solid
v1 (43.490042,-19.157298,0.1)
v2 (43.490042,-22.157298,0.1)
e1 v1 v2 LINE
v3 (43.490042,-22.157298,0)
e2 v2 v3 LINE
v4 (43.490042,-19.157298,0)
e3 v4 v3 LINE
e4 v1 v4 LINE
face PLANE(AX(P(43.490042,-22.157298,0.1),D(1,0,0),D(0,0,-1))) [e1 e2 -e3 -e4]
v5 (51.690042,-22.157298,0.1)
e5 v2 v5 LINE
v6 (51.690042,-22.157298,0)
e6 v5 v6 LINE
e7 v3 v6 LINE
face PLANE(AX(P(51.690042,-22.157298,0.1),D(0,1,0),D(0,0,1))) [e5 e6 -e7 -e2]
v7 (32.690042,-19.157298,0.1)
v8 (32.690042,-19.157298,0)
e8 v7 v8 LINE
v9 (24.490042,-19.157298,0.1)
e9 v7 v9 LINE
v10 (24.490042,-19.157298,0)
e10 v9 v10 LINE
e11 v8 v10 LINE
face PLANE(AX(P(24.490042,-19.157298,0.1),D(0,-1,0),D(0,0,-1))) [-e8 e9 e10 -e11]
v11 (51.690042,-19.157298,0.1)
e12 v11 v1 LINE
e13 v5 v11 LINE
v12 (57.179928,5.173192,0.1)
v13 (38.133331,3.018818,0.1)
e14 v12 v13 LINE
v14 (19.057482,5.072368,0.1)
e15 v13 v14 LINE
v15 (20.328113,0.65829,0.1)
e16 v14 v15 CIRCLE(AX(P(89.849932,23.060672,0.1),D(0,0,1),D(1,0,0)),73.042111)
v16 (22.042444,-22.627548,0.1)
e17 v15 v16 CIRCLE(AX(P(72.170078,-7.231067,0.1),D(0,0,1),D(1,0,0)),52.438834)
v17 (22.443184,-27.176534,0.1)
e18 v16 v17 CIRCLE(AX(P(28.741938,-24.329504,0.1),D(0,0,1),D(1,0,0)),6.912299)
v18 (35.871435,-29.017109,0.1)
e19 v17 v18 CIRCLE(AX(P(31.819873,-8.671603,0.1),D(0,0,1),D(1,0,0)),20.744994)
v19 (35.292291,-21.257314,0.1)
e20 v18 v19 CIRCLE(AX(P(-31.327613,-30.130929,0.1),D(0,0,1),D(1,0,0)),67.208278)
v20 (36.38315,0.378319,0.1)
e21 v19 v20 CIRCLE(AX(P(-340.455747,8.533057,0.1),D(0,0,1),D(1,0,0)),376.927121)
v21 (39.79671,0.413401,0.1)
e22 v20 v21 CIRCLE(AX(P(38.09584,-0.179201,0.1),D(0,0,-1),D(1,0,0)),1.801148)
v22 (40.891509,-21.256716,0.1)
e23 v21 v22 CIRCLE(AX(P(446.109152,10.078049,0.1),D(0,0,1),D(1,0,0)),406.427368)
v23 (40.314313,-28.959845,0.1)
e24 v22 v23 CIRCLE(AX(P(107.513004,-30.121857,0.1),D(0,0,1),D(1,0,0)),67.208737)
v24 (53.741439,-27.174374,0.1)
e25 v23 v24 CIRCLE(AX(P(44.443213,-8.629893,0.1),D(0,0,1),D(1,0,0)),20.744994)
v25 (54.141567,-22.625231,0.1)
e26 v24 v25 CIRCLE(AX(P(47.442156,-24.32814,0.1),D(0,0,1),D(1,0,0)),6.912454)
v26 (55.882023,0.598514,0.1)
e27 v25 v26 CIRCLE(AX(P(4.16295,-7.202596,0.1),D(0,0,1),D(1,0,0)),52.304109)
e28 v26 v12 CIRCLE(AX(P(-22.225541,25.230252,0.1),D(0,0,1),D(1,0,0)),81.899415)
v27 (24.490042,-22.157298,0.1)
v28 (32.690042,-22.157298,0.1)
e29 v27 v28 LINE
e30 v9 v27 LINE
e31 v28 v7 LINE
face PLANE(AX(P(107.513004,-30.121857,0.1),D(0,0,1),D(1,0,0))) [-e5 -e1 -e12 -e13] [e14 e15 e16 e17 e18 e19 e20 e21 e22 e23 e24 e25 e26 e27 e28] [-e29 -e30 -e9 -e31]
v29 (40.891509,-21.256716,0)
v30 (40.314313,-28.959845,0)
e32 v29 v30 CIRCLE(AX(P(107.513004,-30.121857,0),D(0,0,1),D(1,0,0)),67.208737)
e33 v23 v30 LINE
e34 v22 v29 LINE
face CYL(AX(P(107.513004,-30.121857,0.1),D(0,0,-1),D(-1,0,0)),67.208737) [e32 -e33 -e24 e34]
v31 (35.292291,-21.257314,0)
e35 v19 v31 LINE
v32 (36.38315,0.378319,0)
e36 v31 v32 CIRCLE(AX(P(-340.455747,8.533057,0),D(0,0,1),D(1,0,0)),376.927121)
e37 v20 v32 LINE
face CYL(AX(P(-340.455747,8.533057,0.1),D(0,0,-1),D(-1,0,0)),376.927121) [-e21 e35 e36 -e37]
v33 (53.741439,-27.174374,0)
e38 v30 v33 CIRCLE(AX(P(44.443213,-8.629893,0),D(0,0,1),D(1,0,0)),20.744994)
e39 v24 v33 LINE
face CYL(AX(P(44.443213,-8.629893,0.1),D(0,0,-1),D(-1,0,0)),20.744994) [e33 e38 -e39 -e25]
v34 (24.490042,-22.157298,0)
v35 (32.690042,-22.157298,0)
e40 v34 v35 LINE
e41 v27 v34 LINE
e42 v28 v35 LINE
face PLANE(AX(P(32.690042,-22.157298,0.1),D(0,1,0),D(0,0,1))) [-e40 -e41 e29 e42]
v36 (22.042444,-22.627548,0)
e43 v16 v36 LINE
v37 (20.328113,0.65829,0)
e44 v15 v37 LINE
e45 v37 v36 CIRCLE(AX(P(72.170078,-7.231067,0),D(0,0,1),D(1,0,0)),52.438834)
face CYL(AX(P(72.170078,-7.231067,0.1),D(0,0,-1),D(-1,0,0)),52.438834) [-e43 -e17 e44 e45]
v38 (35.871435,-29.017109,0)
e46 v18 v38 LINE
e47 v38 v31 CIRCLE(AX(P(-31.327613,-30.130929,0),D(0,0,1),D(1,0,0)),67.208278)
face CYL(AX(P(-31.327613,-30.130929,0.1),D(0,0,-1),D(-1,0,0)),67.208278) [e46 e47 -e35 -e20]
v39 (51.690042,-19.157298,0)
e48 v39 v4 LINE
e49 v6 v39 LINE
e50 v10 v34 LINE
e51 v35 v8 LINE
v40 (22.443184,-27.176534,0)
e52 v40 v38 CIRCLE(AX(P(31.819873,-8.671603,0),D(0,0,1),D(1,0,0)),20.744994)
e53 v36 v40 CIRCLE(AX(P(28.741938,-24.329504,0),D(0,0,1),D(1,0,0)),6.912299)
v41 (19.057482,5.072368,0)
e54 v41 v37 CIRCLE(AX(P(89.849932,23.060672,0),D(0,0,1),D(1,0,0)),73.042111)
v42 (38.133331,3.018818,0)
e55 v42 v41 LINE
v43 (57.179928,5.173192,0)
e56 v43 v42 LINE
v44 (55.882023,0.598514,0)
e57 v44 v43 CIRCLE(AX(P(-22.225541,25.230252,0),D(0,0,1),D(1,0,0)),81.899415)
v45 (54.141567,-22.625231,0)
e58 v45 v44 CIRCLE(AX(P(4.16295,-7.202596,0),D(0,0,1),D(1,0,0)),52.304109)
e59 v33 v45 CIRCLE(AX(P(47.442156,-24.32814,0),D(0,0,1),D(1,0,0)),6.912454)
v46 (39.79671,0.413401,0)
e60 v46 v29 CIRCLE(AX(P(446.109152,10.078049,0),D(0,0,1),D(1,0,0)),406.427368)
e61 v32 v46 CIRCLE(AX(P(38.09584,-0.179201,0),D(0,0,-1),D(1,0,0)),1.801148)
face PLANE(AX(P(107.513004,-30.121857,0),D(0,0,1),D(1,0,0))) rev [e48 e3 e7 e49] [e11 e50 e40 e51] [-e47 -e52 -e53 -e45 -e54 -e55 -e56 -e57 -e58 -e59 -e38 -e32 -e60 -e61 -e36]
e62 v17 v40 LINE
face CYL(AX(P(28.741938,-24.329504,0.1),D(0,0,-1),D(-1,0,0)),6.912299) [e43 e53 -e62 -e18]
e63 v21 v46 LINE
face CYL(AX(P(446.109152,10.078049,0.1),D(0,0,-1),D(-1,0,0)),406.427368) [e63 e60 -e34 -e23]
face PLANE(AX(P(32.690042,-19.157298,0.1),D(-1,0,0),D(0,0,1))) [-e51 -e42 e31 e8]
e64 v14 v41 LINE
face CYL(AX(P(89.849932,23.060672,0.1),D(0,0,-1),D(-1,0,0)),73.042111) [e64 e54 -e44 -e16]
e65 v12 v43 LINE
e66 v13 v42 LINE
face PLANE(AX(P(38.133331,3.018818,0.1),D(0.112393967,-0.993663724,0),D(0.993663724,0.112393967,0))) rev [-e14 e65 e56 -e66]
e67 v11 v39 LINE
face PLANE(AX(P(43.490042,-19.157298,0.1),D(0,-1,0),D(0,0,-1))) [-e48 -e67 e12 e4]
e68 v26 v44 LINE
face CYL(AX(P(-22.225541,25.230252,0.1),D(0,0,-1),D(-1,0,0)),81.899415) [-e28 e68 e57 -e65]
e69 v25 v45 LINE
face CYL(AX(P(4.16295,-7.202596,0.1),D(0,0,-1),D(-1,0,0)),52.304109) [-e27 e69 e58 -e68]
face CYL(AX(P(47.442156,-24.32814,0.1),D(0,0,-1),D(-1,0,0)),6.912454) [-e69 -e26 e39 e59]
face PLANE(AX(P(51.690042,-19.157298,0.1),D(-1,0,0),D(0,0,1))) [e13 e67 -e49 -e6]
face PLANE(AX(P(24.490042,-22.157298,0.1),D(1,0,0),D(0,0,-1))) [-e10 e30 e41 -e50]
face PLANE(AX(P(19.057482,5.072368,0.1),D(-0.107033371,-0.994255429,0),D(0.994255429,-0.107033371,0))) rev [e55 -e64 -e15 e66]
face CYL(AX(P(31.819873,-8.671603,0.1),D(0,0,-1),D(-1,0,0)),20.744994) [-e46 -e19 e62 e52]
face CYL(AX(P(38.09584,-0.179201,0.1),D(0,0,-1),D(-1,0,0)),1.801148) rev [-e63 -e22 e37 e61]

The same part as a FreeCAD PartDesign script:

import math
import FreeCAD as App
import Part
import Sketcher

doc = App.newDocument("Part")
params = doc.addObject("Spreadsheet::Sheet", "Params")
for row, (alias, value) in enumerate([
    ("sketch1_height", "3 mm"),
    ("sketch1_width", "8.2 mm"),
    ("pad1_length", "0.1 mm"),
], start=1):
    params.set(f"A{row}", alias)
    params.set(f"B{row}", "=" + value)
    params.setAlias(f"B{row}", alias)

body = doc.addObject("PartDesign::Body", "Body")

# Sketch on XY plane
sketch1 = doc.addObject("Sketcher::SketchObject", "Sketch")
body.addObject(sketch1)
sketch1.AttachmentSupport = (doc.XY_Plane, [""])
sketch1.MapMode = "FlatFace"
sketch1.addGeometry([
    Part.LineSegment(App.Vector(57.2, 5.2, 0), App.Vector(38.1, 3, 0)),  # 0
    Part.LineSegment(App.Vector(38.1, 3, 0), App.Vector(19.1, 5.1, 0)),  # 1
    Part.ArcOfCircle(Part.Circle(App.Vector(89.8, 23.1, 0), App.Vector(0, 0, 1), 73), math.radians(-165.74), math.radians(-162.14)),  # 2
    Part.ArcOfCircle(Part.Circle(App.Vector(72.2, -7.2, 0), App.Vector(0, 0, 1), 52.4), math.radians(171), math.radians(197)),  # 3
    Part.ArcOfCircle(Part.Circle(App.Vector(28.7, -24.3, 0), App.Vector(0, 0, 1), 6.9), math.radians(166), math.radians(204)),  # 4
    Part.ArcOfCircle(Part.Circle(App.Vector(31.8, -8.7, 0), App.Vector(0, 0, 1), 20.7), math.radians(-117), math.radians(-79)),  # 5
    Part.ArcOfCircle(Part.Circle(App.Vector(-31.3, -30.1, 0), App.Vector(0, 0, 1), 67.2), math.radians(0.95), math.radians(7.59)),  # 6
    Part.ArcOfCircle(Part.Circle(App.Vector(-340.5, 8.5, 0), App.Vector(0, 0, 1), 376.9), math.radians(-4.53), math.radians(-1.24)),  # 7
    Part.ArcOfCircle(Part.Circle(App.Vector(38.1, -0.2, 0), App.Vector(0, 0, 1), 1.8), math.radians(19), math.radians(162)),  # 8
    Part.ArcOfCircle(Part.Circle(App.Vector(446.1, 10.1, 0), App.Vector(0, 0, 1), 406.4), math.radians(-178.64), math.radians(-175.58)),  # 9
    Part.ArcOfCircle(Part.Circle(App.Vector(107.5, -30.1, 0), App.Vector(0, 0, 1), 67.2), math.radians(172.42), math.radians(179.01)),  # 10
    Part.ArcOfCircle(Part.Circle(App.Vector(44.4, -8.6, 0), App.Vector(0, 0, 1), 20.7), math.radians(-101), math.radians(-63)),  # 11
    Part.ArcOfCircle(Part.Circle(App.Vector(47.4, -24.3, 0), App.Vector(0, 0, 1), 6.9), math.radians(-24), math.radians(14)),  # 12
    Part.ArcOfCircle(Part.Circle(App.Vector(4.2, -7.2, 0), App.Vector(0, 0, 1), 52.3), math.radians(-17), math.radians(9)),  # 13
    Part.ArcOfCircle(Part.Circle(App.Vector(-22.2, 25.2, 0), App.Vector(0, 0, 1), 81.9), math.radians(-17.5), math.radians(-14.18)),  # 14
    Part.LineSegment(App.Vector(43.5, -22.2, 0), App.Vector(43.5, -19.2, 0)),  # 15
    Part.LineSegment(App.Vector(43.5, -19.2, 0), App.Vector(51.7, -19.2, 0)),  # 16
    Part.LineSegment(App.Vector(51.7, -19.2, 0), App.Vector(51.7, -22.2, 0)),  # 17
    Part.LineSegment(App.Vector(51.7, -22.2, 0), App.Vector(43.5, -22.2, 0)),  # 18
    Part.LineSegment(App.Vector(24.5, -22.2, 0), App.Vector(24.5, -19.2, 0)),  # 19
    Part.LineSegment(App.Vector(24.5, -19.2, 0), App.Vector(32.7, -19.2, 0)),  # 20
    Part.LineSegment(App.Vector(32.7, -19.2, 0), App.Vector(32.7, -22.2, 0)),  # 21
    Part.LineSegment(App.Vector(32.7, -22.2, 0), App.Vector(24.5, -22.2, 0)),  # 22
], False)
sketch1.addConstraint([
    Sketcher.Constraint("Coincident", 0, 2, 1, 1),
    Sketcher.Constraint("Coincident", 1, 2, 2, 1),
    Sketcher.Constraint("Coincident", 2, 2, 3, 1),
    Sketcher.Constraint("Coincident", 3, 2, 4, 1),
    Sketcher.Constraint("Coincident", 4, 2, 5, 1),
    Sketcher.Constraint("Coincident", 5, 2, 6, 1),
    Sketcher.Constraint("Coincident", 6, 2, 7, 1),
    Sketcher.Constraint("Coincident", 7, 2, 8, 2),
    Sketcher.Constraint("Coincident", 8, 1, 9, 1),
    Sketcher.Constraint("Coincident", 9, 2, 10, 1),
    Sketcher.Constraint("Coincident", 10, 2, 11, 1),
    Sketcher.Constraint("Coincident", 11, 2, 12, 1),
    Sketcher.Constraint("Coincident", 12, 2, 13, 1),
    Sketcher.Constraint("Coincident", 13, 2, 14, 1),
    Sketcher.Constraint("Coincident", 14, 2, 0, 1),
    Sketcher.Constraint("Coincident", 15, 2, 16, 1),
    Sketcher.Constraint("Coincident", 16, 2, 17, 1),
    Sketcher.Constraint("Coincident", 17, 2, 18, 1),
    Sketcher.Constraint("Coincident", 18, 2, 15, 1),
    Sketcher.Constraint("Coincident", 19, 2, 20, 1),
    Sketcher.Constraint("Coincident", 20, 2, 21, 1),
    Sketcher.Constraint("Coincident", 21, 2, 22, 1),
    Sketcher.Constraint("Coincident", 22, 2, 19, 1),
    Sketcher.Constraint("Vertical", 15),
    Sketcher.Constraint("Horizontal", 16),
    Sketcher.Constraint("Vertical", 17),
    Sketcher.Constraint("Horizontal", 18),
    Sketcher.Constraint("Vertical", 19),
    Sketcher.Constraint("Horizontal", 20),
    Sketcher.Constraint("Vertical", 21),
    Sketcher.Constraint("Horizontal", 22),
    Sketcher.Constraint("Equal", 5, 11),
    Sketcher.Constraint("Horizontal", 16, 2, 19, 2),
    Sketcher.Constraint("Horizontal", 18, 2, 21, 2),
    Sketcher.Constraint("Equal", 18, 20),
    Sketcher.Constraint("DistanceY", 15, 1, 15, 2, 3.0),
    Sketcher.Constraint("DistanceX", 16, 1, 16, 2, 8.2),
    Sketcher.Constraint("Radius", 4, 6.912299),
    Sketcher.Constraint("Radius", 7, 376.927121),
    Sketcher.Constraint("Radius", 8, 1.801148),
    Sketcher.Constraint("Radius", 9, 406.42737),
    Sketcher.Constraint("Radius", 13, 52.304109),
    Sketcher.Constraint("Radius", 2, 73.042113),
    Sketcher.Constraint("Radius", 3, 52.438834),
    Sketcher.Constraint("Radius", 5, 20.744994),
    Sketcher.Constraint("Radius", 6, 67.208278),
    Sketcher.Constraint("Radius", 10, 67.208738),
    Sketcher.Constraint("Radius", 12, 6.912454),
    Sketcher.Constraint("Radius", 14, 81.899415),
    Sketcher.Constraint("DistanceY", 8, 3, -1, 1, 0.179201),
    Sketcher.Constraint("DistanceY", -1, 1, 8, 1, 0.413401),
    Sketcher.Constraint("DistanceY", 4, 3, 5, 3, 15.657901),
    Sketcher.Constraint("DistanceY", 6, 3, 2, 3, 53.191602),
    Sketcher.Constraint("DistanceX", 4, 3, 8, 3, 9.353902),
    Sketcher.Constraint("DistanceY", 7, 2, 0, 2, 2.6405),
    Sketcher.Constraint("DistanceY", 6, 2, 9, 2, 0.000598),
    Sketcher.Constraint("Distance", 0, 19.16805),
    Sketcher.Constraint("DistanceX", -1, 1, 3, 3, 72.170078),
    Sketcher.Constraint("DistanceX", -1, 1, 4, 3, 28.741938),
    Sketcher.Constraint("DistanceY", 6, 3, -1, 1, 30.130929),
    Sketcher.Constraint("DistanceY", -1, 1, 9, 3, 10.078049),
    Sketcher.Constraint("DistanceY", 12, 3, -1, 1, 24.32814),
    Sketcher.Constraint("DistanceX", -1, 1, 13, 3, 4.16295),
    Sketcher.Constraint("DistanceX", 14, 3, -1, 1, 22.225541),
    Sketcher.Constraint("DistanceX", -1, 1, 0, 2, 38.133331),
    Sketcher.Constraint("DistanceY", -1, 1, 0, 2, 3.018818),
    Sketcher.Constraint("DistanceY", -1, 1, 2, 2, 0.65829),
    Sketcher.Constraint("DistanceY", 5, 2, -1, 1, 29.017109),
    Sketcher.Constraint("DistanceX", -1, 1, 6, 2, 35.292291),
    Sketcher.Constraint("DistanceX", -1, 1, 11, 2, 53.741439),
    Sketcher.Constraint("DistanceY", 12, 2, -1, 1, 22.625231),
    Sketcher.Constraint("DistanceY", -1, 1, 14, 2, 5.173192),
    Sketcher.Constraint("DistanceX", -1, 1, 15, 2, 43.490042),
    Sketcher.Constraint("DistanceX", -1, 1, 19, 2, 24.490042),
    Sketcher.Constraint("DistanceY", 3, 3, 2, 3, 30.291739),
    Sketcher.Constraint("DistanceX", 5, 3, 2, 3, 58.03006),
    Sketcher.Constraint("DistanceX", 6, 3, 4, 3, 60.069551),
    Sketcher.Constraint("DistanceY", 10, 3, 3, 3, 22.89079),
    Sketcher.Constraint("DistanceX", 5, 3, 11, 3, 12.62334),
    Sketcher.Constraint("DistanceY", 5, 3, 11, 3, 0.04171),
    Sketcher.Constraint("DistanceX", 1, 2, 5, 3, 12.762391),
    Sketcher.Constraint("DistanceY", 3, 2, 19, 2, 3.47025),
])
sketch1.setExpression("Constraints[35]", "Params.sketch1_height")
sketch1.setExpression("Constraints[36]", "Params.sketch1_width")
pad1 = doc.addObject("PartDesign::Pad", "Pad")
body.addObject(pad1)
pad1.Profile = sketch1
pad1.setExpression("Length", "Params.pad1_length")

doc.recompute()
